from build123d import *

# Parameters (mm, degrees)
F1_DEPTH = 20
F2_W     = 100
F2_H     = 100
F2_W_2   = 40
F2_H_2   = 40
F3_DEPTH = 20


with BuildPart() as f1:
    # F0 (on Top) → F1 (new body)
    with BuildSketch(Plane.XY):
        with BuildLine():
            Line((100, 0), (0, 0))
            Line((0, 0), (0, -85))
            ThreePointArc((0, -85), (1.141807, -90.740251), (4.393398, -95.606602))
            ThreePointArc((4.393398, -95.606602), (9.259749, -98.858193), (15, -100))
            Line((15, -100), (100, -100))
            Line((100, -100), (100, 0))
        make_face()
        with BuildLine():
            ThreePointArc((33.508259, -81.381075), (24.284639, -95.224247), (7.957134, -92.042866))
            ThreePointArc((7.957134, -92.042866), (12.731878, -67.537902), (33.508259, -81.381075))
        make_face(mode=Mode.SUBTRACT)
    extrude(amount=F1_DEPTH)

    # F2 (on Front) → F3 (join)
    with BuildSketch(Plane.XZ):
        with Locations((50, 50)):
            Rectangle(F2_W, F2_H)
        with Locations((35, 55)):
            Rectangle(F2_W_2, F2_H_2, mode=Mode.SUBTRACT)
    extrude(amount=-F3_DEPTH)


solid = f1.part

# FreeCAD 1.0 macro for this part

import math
import FreeCAD as App
import Part
import Sketcher

V = App.Vector
Q = App.Units.Quantity

doc = App.newDocument("Part")
body = doc.addObject("PartDesign::Body", "Body")

sketch1 = body.newObject("Sketcher::SketchObject", "Sketch")
sketch1.AttachmentSupport = (doc.getObject("XY_Plane"), [""])
sketch1.MapMode = "FlatFace"
sketch1.addGeometry([
    Part.LineSegment(V(100, 0, 0), V(0, 0, 0)),
    Part.LineSegment(V(0, 0, 0), V(0, -85, 0)),
    Part.ArcOfCircle(Part.Circle(V(15, -85, 0), V(0, 0, 1), 15), math.radians(-180), math.radians(-135)),
    Part.ArcOfCircle(Part.Circle(V(15, -85, 0), V(0, 0, 1), 15), math.radians(-135), math.radians(-90)),
    Part.LineSegment(V(15, -100, 0), V(100, -100, 0)),
    Part.LineSegment(V(100, -100, 0), V(100, 0, 0)),
    Part.ArcOfCircle(Part.Circle(V(19, -81, 0), V(0, 0, 1), 15), math.radians(0), math.radians(225)),
    Part.ArcOfCircle(Part.Circle(V(19, -81, 0), V(0, 0, 1), 15), math.radians(-135), math.radians(0)),
], False)
sketch1.addConstraint([
    Sketcher.Constraint("Coincident", 0, 2, 1, 1),
    Sketcher.Constraint("Tangent", 1, 2, 2, 1),
    Sketcher.Constraint("Tangent", 2, 2, 3, 1),
    Sketcher.Constraint("Tangent", 3, 2, 4, 1),
    Sketcher.Constraint("Coincident", 4, 2, 5, 1),
    Sketcher.Constraint("Coincident", 5, 2, 0, 1),
    Sketcher.Constraint("Tangent", 6, 1, 7, 2),
    Sketcher.Constraint("Coincident", 7, 1, 6, 2),
    Sketcher.Constraint("Horizontal", 0),
    Sketcher.Constraint("Vertical", 1),
    Sketcher.Constraint("Horizontal", 4),
    Sketcher.Constraint("Vertical", 5),
    Sketcher.Constraint("Coincident", 0, 2, -1, 1),
    Sketcher.Constraint("Equal", 2, 3),
    Sketcher.Constraint("Horizontal", 7, 3, 6, 1),
    Sketcher.Constraint("Equal", 4, 1),
    Sketcher.Constraint("Radius", 6, Q("15 mm")),
    Sketcher.Constraint("DistanceX", 0, 2, 0, 1, Q("100 mm")),
    Sketcher.Constraint("DistanceX", 4, 1, 4, 2, Q("85 mm")),
    Sketcher.Constraint("DistanceX", -1, 1, 6, 3, Q("18.508259 mm")),
    Sketcher.Constraint("DistanceY", 3, 3, 6, 3, Q("3.61892 mm")),
    Sketcher.Constraint("DistanceX", 2, 2, 6, 3, Q("14.114861 mm")),
    Sketcher.Constraint("DistanceX", 7, 1, 2, 3, Q("7.042871 mm")),
])
pad1 = body.newObject("PartDesign::Pad", "Pad")
pad1.Profile = sketch1
pad1.Length = 20

sketch2 = body.newObject("Sketcher::SketchObject", "Sketch001")
sketch2.AttachmentSupport = (doc.getObject("XZ_Plane"), [""])
sketch2.MapMode = "FlatFace"
sketch2.addGeometry([
    Part.LineSegment(V(0, 100, 0), V(0, 0, 0)),
    Part.LineSegment(V(0, 0, 0), V(100, 0, 0)),
    Part.LineSegment(V(100, 0, 0), V(100, 100, 0)),
    Part.LineSegment(V(100, 100, 0), V(0, 100, 0)),
    Part.LineSegment(V(55, 35, 0), V(15, 35, 0)),
    Part.LineSegment(V(15, 35, 0), V(15, 75, 0)),
    Part.LineSegment(V(15, 75, 0), V(55, 75, 0)),
    Part.LineSegment(V(55, 75, 0), V(55, 35, 0)),
], False)
sketch2.addConstraint([
    Sketcher.Constraint("Coincident", 0, 2, 1, 1),
    Sketcher.Constraint("Coincident", 1, 2, 2, 1),
    Sketcher.Constraint("Coincident", 2, 2, 3, 1),
    Sketcher.Constraint("Coincident", 3, 2, 0, 1),
    Sketcher.Constraint("Coincident", 4, 2, 5, 1),
    Sketcher.Constraint("Coincident", 5, 2, 6, 1),
    Sketcher.Constraint("Coincident", 6, 2, 7, 1),
    Sketcher.Constraint("Coincident", 7, 2, 4, 1),
    Sketcher.Constraint("Vertical", 0),
    Sketcher.Constraint("Horizontal", 1),
    Sketcher.Constraint("Vertical", 2),
    Sketcher.Constraint("Horizontal", 3),
    Sketcher.Constraint("Horizontal", 4),
    Sketcher.Constraint("Vertical", 5),
    Sketcher.Constraint("Horizontal", 6),
    Sketcher.Constraint("Vertical", 7),
    Sketcher.Constraint("Coincident", 0, 2, -1, 1),
    Sketcher.Constraint("Equal", 3, 0),
    Sketcher.Constraint("Equal", 6, 5),
    Sketcher.Constraint("DistanceX", 1, 1, 1, 2, Q("100 mm")),
    Sketcher.Constraint("DistanceX", 4, 2, 4, 1, Q("40 mm")),
    Sketcher.Constraint("DistanceX", -1, 1, 4, 2, Q("15 mm")),
    Sketcher.Constraint("DistanceY", -1, 1, 4, 2, Q("35 mm")),
])
pad2 = body.newObject("PartDesign::Pad", "Pad001")
pad2.Profile = sketch2
pad2.Length = 20
pad2.Reversed = True

doc.recompute()
